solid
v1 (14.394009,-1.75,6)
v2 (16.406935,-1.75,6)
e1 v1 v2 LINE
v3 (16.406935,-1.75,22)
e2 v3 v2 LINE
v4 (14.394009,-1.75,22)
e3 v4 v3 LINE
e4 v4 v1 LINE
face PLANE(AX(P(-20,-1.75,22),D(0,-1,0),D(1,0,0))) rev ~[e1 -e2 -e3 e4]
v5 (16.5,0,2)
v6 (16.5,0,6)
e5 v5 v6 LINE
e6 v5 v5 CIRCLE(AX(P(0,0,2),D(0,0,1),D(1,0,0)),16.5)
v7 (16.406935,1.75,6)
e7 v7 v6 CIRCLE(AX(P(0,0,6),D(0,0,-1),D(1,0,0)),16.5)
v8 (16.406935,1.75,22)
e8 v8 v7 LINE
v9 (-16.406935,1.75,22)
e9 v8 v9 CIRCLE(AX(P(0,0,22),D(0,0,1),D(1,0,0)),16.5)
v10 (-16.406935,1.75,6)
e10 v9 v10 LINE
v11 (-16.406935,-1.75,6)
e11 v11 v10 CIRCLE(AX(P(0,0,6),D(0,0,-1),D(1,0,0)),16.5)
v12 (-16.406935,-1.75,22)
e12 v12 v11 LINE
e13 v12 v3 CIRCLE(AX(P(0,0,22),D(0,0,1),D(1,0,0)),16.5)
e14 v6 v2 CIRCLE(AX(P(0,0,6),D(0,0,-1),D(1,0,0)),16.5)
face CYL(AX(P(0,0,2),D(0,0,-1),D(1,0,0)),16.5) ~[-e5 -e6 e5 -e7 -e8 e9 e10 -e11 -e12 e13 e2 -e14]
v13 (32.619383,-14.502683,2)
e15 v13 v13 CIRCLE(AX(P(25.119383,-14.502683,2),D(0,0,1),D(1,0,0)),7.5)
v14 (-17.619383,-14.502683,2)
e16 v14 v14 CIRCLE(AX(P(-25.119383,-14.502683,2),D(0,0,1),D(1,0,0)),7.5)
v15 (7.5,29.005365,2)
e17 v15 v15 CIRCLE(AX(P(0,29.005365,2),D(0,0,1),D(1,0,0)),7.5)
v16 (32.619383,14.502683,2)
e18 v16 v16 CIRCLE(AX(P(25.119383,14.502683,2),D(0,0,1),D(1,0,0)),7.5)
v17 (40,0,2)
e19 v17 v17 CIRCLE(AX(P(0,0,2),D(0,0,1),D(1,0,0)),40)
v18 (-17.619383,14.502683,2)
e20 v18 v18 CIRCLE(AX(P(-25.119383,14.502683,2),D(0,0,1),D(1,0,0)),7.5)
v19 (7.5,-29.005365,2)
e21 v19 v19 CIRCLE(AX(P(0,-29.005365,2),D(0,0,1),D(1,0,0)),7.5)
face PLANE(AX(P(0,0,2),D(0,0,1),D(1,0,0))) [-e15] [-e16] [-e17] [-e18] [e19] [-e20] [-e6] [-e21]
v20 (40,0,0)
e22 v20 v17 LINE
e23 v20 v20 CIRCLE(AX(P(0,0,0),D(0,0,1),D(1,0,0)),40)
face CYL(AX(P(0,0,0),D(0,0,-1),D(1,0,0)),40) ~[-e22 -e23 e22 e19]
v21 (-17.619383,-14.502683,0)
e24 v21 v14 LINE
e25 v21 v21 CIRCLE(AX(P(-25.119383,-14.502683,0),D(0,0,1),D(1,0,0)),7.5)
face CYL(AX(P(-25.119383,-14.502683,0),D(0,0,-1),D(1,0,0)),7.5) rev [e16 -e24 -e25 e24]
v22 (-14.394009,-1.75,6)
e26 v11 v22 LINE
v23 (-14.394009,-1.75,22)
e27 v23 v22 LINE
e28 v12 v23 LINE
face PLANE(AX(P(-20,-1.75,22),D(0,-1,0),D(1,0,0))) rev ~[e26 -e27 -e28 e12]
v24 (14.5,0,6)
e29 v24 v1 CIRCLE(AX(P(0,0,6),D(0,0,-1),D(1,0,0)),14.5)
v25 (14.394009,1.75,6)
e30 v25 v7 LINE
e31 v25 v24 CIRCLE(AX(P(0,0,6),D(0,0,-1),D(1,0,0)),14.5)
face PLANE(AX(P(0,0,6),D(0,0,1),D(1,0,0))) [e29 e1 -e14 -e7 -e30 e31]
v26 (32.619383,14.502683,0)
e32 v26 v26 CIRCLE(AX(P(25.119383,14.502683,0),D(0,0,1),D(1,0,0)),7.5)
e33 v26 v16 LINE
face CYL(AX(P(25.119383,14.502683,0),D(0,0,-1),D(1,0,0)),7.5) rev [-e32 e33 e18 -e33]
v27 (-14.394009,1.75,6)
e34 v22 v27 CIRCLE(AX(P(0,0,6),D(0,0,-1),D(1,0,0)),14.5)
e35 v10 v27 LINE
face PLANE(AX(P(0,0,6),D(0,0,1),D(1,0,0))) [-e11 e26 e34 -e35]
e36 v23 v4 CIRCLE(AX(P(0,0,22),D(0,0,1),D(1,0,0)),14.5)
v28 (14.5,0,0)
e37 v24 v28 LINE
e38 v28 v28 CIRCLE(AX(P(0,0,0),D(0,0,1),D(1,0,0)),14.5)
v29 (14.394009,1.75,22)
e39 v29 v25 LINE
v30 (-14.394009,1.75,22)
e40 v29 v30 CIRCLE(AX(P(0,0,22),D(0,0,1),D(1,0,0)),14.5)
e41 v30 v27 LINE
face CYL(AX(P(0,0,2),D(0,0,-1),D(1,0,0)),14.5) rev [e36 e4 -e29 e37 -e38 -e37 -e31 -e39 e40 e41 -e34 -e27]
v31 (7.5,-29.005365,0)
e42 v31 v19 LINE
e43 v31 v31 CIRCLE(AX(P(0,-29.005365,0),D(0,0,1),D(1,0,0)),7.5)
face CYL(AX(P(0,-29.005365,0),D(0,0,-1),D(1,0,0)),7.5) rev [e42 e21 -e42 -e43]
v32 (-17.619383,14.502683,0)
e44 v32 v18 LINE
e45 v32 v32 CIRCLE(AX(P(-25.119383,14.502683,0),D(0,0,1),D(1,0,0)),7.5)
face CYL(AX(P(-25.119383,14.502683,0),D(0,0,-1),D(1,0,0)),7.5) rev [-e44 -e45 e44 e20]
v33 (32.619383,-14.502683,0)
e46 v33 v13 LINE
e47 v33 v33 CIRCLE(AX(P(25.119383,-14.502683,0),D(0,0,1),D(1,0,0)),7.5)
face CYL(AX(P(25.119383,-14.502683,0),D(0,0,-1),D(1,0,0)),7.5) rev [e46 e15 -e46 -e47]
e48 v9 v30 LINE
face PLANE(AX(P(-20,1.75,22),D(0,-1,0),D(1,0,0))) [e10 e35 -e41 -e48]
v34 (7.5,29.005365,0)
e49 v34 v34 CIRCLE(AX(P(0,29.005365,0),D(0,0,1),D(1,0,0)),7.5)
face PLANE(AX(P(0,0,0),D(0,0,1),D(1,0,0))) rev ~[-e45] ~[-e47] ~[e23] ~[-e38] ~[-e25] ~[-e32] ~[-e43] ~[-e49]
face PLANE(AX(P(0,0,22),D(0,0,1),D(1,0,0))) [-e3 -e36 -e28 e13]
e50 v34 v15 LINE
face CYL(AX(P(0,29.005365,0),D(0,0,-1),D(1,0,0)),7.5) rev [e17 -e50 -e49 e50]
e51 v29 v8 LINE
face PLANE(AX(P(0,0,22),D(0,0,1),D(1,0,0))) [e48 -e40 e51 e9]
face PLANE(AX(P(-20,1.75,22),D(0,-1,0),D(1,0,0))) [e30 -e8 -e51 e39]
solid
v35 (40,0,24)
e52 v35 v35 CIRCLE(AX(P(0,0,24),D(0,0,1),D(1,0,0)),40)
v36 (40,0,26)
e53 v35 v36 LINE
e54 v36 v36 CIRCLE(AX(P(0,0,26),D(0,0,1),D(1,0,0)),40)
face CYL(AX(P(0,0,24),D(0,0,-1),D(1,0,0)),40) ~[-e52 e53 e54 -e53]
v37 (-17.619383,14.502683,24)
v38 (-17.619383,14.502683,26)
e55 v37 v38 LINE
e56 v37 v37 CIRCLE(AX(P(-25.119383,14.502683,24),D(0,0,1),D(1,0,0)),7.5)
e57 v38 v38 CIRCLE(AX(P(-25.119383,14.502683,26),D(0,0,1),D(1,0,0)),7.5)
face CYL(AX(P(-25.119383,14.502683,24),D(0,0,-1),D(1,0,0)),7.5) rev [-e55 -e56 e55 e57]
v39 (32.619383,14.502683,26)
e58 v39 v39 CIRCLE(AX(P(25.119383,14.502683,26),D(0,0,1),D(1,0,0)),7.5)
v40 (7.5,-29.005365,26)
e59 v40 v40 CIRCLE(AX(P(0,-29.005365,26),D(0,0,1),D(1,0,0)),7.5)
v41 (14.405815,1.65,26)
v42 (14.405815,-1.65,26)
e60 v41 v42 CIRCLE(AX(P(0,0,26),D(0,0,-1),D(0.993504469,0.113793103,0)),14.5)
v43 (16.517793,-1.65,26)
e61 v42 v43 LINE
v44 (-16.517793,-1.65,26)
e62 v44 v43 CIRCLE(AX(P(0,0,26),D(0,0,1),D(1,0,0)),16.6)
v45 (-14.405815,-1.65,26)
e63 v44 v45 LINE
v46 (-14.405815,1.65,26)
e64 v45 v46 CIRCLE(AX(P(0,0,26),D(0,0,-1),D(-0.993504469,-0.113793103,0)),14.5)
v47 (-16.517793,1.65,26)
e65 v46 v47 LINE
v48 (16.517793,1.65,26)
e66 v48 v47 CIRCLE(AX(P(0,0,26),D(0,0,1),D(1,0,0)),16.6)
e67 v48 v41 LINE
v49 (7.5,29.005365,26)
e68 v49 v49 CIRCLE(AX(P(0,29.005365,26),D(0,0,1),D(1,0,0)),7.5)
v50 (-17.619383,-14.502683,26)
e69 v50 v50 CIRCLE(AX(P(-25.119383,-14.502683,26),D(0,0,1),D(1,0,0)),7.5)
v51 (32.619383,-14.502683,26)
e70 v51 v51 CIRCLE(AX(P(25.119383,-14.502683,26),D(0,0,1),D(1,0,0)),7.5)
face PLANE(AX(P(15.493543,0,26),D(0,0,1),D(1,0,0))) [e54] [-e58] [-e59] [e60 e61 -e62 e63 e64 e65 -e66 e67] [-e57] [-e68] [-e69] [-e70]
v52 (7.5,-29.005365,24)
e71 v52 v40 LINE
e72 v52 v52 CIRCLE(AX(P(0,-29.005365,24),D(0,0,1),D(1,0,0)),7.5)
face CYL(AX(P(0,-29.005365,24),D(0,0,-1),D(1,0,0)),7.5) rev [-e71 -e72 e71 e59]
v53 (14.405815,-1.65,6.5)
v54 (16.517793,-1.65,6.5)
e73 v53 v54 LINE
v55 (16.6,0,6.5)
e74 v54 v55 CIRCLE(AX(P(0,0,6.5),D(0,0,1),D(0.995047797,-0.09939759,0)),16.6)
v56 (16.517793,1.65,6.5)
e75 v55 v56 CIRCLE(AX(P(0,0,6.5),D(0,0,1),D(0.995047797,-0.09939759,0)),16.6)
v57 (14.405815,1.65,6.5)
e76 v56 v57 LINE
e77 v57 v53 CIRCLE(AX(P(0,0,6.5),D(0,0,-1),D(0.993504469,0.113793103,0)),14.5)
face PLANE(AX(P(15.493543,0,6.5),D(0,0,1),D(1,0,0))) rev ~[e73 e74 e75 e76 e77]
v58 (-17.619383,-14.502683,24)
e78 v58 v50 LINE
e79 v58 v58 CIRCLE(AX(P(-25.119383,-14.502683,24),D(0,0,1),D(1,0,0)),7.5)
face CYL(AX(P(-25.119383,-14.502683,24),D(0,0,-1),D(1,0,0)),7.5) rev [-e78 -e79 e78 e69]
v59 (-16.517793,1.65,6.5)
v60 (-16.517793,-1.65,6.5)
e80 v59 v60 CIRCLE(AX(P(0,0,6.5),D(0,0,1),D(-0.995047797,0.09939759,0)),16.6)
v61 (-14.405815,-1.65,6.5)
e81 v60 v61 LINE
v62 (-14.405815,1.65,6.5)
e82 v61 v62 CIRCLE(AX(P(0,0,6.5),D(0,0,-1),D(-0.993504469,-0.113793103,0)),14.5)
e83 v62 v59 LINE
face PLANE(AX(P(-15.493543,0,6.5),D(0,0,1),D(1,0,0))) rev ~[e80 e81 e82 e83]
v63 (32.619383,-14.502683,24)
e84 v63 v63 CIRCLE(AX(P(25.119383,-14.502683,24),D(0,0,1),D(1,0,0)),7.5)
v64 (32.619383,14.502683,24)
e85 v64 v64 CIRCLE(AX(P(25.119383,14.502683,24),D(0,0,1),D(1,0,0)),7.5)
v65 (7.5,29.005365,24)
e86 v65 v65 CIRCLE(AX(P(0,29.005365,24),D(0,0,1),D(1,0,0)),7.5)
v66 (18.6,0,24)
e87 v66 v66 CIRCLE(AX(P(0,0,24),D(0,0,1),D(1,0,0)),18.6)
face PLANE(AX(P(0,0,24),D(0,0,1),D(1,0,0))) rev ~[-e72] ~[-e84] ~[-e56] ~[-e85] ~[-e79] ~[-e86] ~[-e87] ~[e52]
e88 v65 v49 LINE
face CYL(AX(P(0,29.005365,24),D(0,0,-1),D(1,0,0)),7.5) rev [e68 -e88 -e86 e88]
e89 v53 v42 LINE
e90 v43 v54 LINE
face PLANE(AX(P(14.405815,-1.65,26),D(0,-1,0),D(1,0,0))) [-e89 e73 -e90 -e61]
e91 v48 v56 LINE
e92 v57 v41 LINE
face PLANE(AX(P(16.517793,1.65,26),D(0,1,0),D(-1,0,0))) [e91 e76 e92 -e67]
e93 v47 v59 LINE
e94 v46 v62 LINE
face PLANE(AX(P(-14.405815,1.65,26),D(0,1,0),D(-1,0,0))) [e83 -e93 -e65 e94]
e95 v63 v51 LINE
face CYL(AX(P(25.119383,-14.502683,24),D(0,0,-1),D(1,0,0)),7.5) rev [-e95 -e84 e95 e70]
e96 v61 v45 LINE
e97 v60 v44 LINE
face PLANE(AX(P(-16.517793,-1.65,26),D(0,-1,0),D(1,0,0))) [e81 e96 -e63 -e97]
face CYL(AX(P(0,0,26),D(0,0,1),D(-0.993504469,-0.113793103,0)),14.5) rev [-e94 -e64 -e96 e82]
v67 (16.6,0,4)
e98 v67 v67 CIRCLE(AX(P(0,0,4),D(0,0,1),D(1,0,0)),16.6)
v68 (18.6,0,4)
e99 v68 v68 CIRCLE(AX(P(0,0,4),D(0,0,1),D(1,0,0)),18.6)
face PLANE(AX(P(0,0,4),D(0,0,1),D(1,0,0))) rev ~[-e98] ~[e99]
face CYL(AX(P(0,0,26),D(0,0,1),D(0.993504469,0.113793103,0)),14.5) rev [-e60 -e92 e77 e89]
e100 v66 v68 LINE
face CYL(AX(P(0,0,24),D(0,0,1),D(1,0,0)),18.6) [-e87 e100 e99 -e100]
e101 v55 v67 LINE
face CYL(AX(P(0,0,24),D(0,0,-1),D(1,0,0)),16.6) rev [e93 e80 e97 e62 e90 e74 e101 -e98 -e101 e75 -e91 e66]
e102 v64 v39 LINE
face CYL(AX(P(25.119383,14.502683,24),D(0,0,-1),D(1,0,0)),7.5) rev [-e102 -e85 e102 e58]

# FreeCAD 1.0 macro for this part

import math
import FreeCAD as App
import Part
import Sketcher


def add_polygon(sketch, points):
    """Adds a closed chain of lines whose ends are joined by coincident constraints."""
    first, n = sketch.GeometryCount, len(points)
    for a, b in zip(points, points[1:] + points[:1]):
        sketch.addGeometry(Part.LineSegment(App.Vector(*a, 0), App.Vector(*b, 0)), False)
    for i in range(n):
        sketch.addConstraint(Sketcher.Constraint("Coincident", first + i, 2, first + (i + 1) % n, 1))

doc = App.newDocument("Part")
body = doc.addObject("PartDesign::Body", "Body")

# Sketch on XY plane
sketch1 = doc.addObject("Sketcher::SketchObject", "Sketch")
body.addObject(sketch1)
sketch1.AttachmentSupport = (doc.XY_Plane, [""])
sketch1.MapMode = "FlatFace"
sketch1.addGeometry([
    Part.Circle(App.Vector(0, 0, 0), App.Vector(0, 0, 1), 40),  # 0
    Part.Circle(App.Vector(-25.119383, -14.502683, 0), App.Vector(0, 0, 1), 7.5),  # 1
    Part.Circle(App.Vector(0, -29.005365, 0), App.Vector(0, 0, 1), 7.5),  # 2
    Part.Circle(App.Vector(25.119383, -14.502683, 0), App.Vector(0, 0, 1), 7.5),  # 3
    Part.Circle(App.Vector(-25.119383, 14.502683, 0), App.Vector(0, 0, 1), 7.5),  # 4
    Part.Circle(App.Vector(0, 0, 0), App.Vector(0, 0, 1), 14.5),  # 5
    Part.Circle(App.Vector(25.119383, 14.502683, 0), App.Vector(0, 0, 1), 7.5),  # 6
    Part.Circle(App.Vector(0, 29.005365, 0), App.Vector(0, 0, 1), 7.5),  # 7
], False)
sketch1.addConstraint([
    Sketcher.Constraint("Coincident", 0, 3, -1, 1),
    Sketcher.Constraint("Coincident", 5, 3, -1, 1),
    Sketcher.Constraint("Equal", 1, 2),
    Sketcher.Constraint("Equal", 2, 3),
    Sketcher.Constraint("Equal", 3, 4),
    Sketcher.Constraint("Equal", 4, 6),
    Sketcher.Constraint("Equal", 6, 7),
    Sketcher.Constraint("Symmetric", 3, 3, 4, 3, -1, 1),
    Sketcher.Constraint("Symmetric", 1, 3, 6, 3, -1, 1),
    Sketcher.Constraint("Symmetric", 2, 3, 7, 3, -1, 1),
    Sketcher.Constraint("Symmetric", 1, 3, 3, 3, -2),
    Sketcher.Constraint("PointOnObject", 2, 3, -2),
    Sketcher.Constraint("Diameter", 0, 80.0),
    Sketcher.Constraint("Diameter", 1, 15.0),
    Sketcher.Constraint("Diameter", 5, 29.0),
    Sketcher.Constraint("DistanceY", 2, 3, 4, 3, 43.508048),
    Sketcher.Constraint("DistanceX", 1, 3, -1, 1, 25.119383),
    Sketcher.Constraint("DistanceY", 1, 3, -1, 1, 14.502683),
])
pad1 = doc.addObject("PartDesign::Pad", "Pad")
body.addObject(pad1)
pad1.Profile = sketch1
pad1.Length = 2

# Sketch on XY plane
sketch2 = doc.addObject("Sketcher::SketchObject", "Sketch001")
body.addObject(sketch2)
sketch2.AttachmentSupport = (doc.XY_Plane, [""])
sketch2.MapMode = "FlatFace"
sketch2.AttachmentOffset = App.Placement(App.Vector(0, 0, 2), App.Rotation())
sketch2.addGeometry([
    Part.Circle(App.Vector(0, 0, 0), App.Vector(0, 0, 1), 16.5),
    Part.Circle(App.Vector(0, 0, 0), App.Vector(0, 0, 1), 14.5),
], False)
sketch2.addConstraint([
    Sketcher.Constraint("Coincident", 0, 3, -1, 1),
    Sketcher.Constraint("Coincident", 1, 3, -1, 1),
    Sketcher.Constraint("Diameter", 0, 33.0),
    Sketcher.Constraint("Diameter", 1, 29.0),
])
pad2 = doc.addObject("PartDesign::Pad", "Pad001")
body.addObject(pad2)
pad2.Profile = sketch2
pad2.Length = 20

# Sketch on XY plane
sketch3 = doc.addObject("Sketcher::SketchObject", "Sketch002")
body.addObject(sketch3)
sketch3.AttachmentSupport = (doc.XY_Plane, [""])
sketch3.MapMode = "FlatFace"
sketch3.AttachmentOffset = App.Placement(App.Vector(0, 0, 22), App.Rotation())
add_polygon(sketch3, [(-20, 1.75), (-20, -1.75), (20, -1.75), (20, 1.75)])  # lines 0-3
sketch3.addConstraint([
    Sketcher.Constraint("Vertical", 0),
    Sketcher.Constraint("Horizontal", 1),
    Sketcher.Constraint("Vertical", 2),
    Sketcher.Constraint("Horizontal", 3),
    Sketcher.Constraint("Symmetric", 0, 2, 2, 2, -1, 1),
    Sketcher.Constraint("DistanceX", 1, 1, 1, 2, 40.0),
    Sketcher.Constraint("DistanceY", 0, 2, 0, 1, 3.5),
])
pocket1 = doc.addObject("PartDesign::Pocket", "Pocket")
body.addObject(pocket1)
pocket1.Profile = sketch3
pocket1.Length = 16
body2 = doc.addObject("PartDesign::Body", "Body001")

# Sketch on XY plane
sketch4 = doc.addObject("Sketcher::SketchObject", "Sketch003")
body2.addObject(sketch4)
sketch4.AttachmentSupport = (doc.getObject("XY_Plane001"), [""])
sketch4.MapMode = "FlatFace"
sketch4.AttachmentOffset = App.Placement(App.Vector(0, 0, 24), App.Rotation())
sketch4.addGeometry([
    Part.Circle(App.Vector(0, 0, 0), App.Vector(0, 0, 1), 18.6),
    Part.Circle(App.Vector(0, 0, 0), App.Vector(0, 0, 1), 16.6),
], False)
sketch4.addConstraint([
    Sketcher.Constraint("Coincident", 0, 3, -1, 1),
    Sketcher.Constraint("Coincident", 1, 3, -1, 1),
    Sketcher.Constraint("Diameter", 0, 37.2),
    Sketcher.Constraint("Diameter", 1, 33.2),
])
pad3 = doc.addObject("PartDesign::Pad", "Pad002")
body2.addObject(pad3)
pad3.Profile = sketch4
pad3.Length = 20
pad3.Reversed = True

# Sketch on XY plane
sketch5 = doc.addObject("Sketcher::SketchObject", "Sketch004")
body2.addObject(sketch5)
sketch5.AttachmentSupport = (doc.getObject("XY_Plane001"), [""])
sketch5.MapMode = "FlatFace"
sketch5.AttachmentOffset = App.Placement(App.Vector(0, 0, 24), App.Rotation())
sketch5.addGeometry([
    Part.Circle(App.Vector(0, 0, 0), App.Vector(0, 0, 1), 40),  # 0
    Part.Circle(App.Vector(-25.119383, -14.502683, 0), App.Vector(0, 0, 1), 7.5),  # 1
    Part.Circle(App.Vector(0, -29.005365, 0), App.Vector(0, 0, 1), 7.5),  # 2
    Part.Circle(App.Vector(25.119383, -14.502683, 0), App.Vector(0, 0, 1), 7.5),  # 3
    Part.Circle(App.Vector(-25.119383, 14.502683, 0), App.Vector(0, 0, 1), 7.5),  # 4
    Part.Circle(App.Vector(0, 0, 0), App.Vector(0, 0, 1), 16.6),  # 5
    Part.Circle(App.Vector(25.119383, 14.502683, 0), App.Vector(0, 0, 1), 7.5),  # 6
    Part.Circle(App.Vector(0, 29.005365, 0), App.Vector(0, 0, 1), 7.5),  # 7
], False)
sketch5.addConstraint([
    Sketcher.Constraint("Coincident", 0, 3, -1, 1),
    Sketcher.Constraint("Coincident", 5, 3, -1, 1),
    Sketcher.Constraint("Equal", 1, 2),
    Sketcher.Constraint("Equal", 2, 3),
    Sketcher.Constraint("Equal", 3, 4),
    Sketcher.Constraint("Equal", 4, 6),
    Sketcher.Constraint("Equal", 6, 7),
    Sketcher.Constraint("Symmetric", 3, 3, 4, 3, -1, 1),
    Sketcher.Constraint("Symmetric", 1, 3, 6, 3, -1, 1),
    Sketcher.Constraint("Symmetric", 2, 3, 7, 3, -1, 1),
    Sketcher.Constraint("Symmetric", 1, 3, 3, 3, -2),
    Sketcher.Constraint("PointOnObject", 2, 3, -2),
    Sketcher.Constraint("Diameter", 0, 80.0),
    Sketcher.Constraint("Diameter", 1, 15.0),
    Sketcher.Constraint("Diameter", 5, 33.2),
    Sketcher.Constraint("DistanceY", 2, 3, 4, 3, 43.508048),
    Sketcher.Constraint("DistanceX", 1, 3, -1, 1, 25.119383),
    Sketcher.Constraint("DistanceY", 1, 3, -1, 1, 14.502683),
])
pad4 = doc.addObject("PartDesign::Pad", "Pad003")
body2.addObject(pad4)
pad4.Profile = sketch5
pad4.Length = 2

# Sketch on XY plane
sketch6 = doc.addObject("Sketcher::SketchObject", "Sketch005")
body2.addObject(sketch6)
sketch6.AttachmentSupport = (doc.getObject("XY_Plane001"), [""])
sketch6.MapMode = "FlatFace"
sketch6.AttachmentOffset = App.Placement(App.Vector(0, 0, 26), App.Rotation())
sketch6.addGeometry([
    Part.LineSegment(App.Vector(16.517793, 1.65, 0), App.Vector(14.405815, 1.65, 0)),  # 0
    Part.ArcOfCircle(Part.Circle(App.Vector(0, 0, 0), App.Vector(0, 0, 1), 14.5), math.radians(-6.534018), math.radians(6.534018)),  # 1
    Part.LineSegment(App.Vector(14.405815, -1.65, 0), App.Vector(16.517793, -1.65, 0)),  # 2
    Part.ArcOfCircle(Part.Circle(App.Vector(0, 0, 0), App.Vector(0, 0, 1), 16.6), math.radians(-5.704482), math.radians(5.704482)),  # 3
    Part.ArcOfCircle(Part.Circle(App.Vector(0, 0, 0), App.Vector(0, 0, 1), 14.5), math.radians(173.465982), math.radians(186.534018)),  # 4
    Part.LineSegment(App.Vector(-14.405815, 1.65, 0), App.Vector(-16.517793, 1.65, 0)),  # 5
    Part.ArcOfCircle(Part.Circle(App.Vector(0, 0, 0), App.Vector(0, 0, 1), 16.6), math.radians(174.295518), math.radians(185.704482)),  # 6
    Part.LineSegment(App.Vector(-16.517793, -1.65, 0), App.Vector(-14.405815, -1.65, 0)),  # 7
], False)
sketch6.addConstraint([
    Sketcher.Constraint("Coincident", 0, 2, 1, 2),
    Sketcher.Constraint("Coincident", 1, 1, 2, 1),
    Sketcher.Constraint("Coincident", 2, 2, 3, 1),
    Sketcher.Constraint("Coincident", 3, 2, 0, 1),
    Sketcher.Constraint("Coincident", 4, 1, 5, 1),
    Sketcher.Constraint("Coincident", 5, 2, 6, 1),
    Sketcher.Constraint("Coincident", 6, 2, 7, 1),
    Sketcher.Constraint("Coincident", 7, 2, 4, 2),
    Sketcher.Constraint("Horizontal", 0),
    Sketcher.Constraint("Horizontal", 2),
    Sketcher.Constraint("Horizontal", 5),
    Sketcher.Constraint("Horizontal", 7),
    Sketcher.Constraint("Coincident", 1, 3, -1, 1),
    Sketcher.Constraint("Coincident", 3, 3, -1, 1),
    Sketcher.Constraint("Coincident", 4, 3, -1, 1),
    Sketcher.Constraint("Coincident", 6, 3, -1, 1),
    Sketcher.Constraint("Equal", 1, 4),
    Sketcher.Constraint("Equal", 3, 6),
    Sketcher.Constraint("Horizontal", 3, 2, 4, 1),
    Sketcher.Constraint("Horizontal", 2, 2, 6, 2),
    Sketcher.Constraint("Vertical", 0, 2, 1, 1),
    Sketcher.Constraint("Radius", 1, 14.5),
    Sketcher.Constraint("Radius", 3, 16.6),
    Sketcher.Constraint("DistanceY", 1, 1, 0, 2, 3.3),
])
pad5 = doc.addObject("PartDesign::Pad", "Pad004")
body2.addObject(pad5)
pad5.Profile = sketch6
pad5.Length = 19.5
pad5.Reversed = True

# Sketch on XY plane
sketch7 = doc.addObject("Sketcher::SketchObject", "Sketch006")
body2.addObject(sketch7)
sketch7.AttachmentSupport = (doc.getObject("XY_Plane001"), [""])
sketch7.MapMode = "FlatFace"
sketch7.AttachmentOffset = App.Placement(App.Vector(0, 0, 26), App.Rotation())
sketch7.addGeometry([
    Part.LineSegment(App.Vector(16.517793, 1.65, 0), App.Vector(14.405815, 1.65, 0)),  # 0
    Part.ArcOfCircle(Part.Circle(App.Vector(0, 0, 0), App.Vector(0, 0, 1), 14.5), math.radians(-6.534018), math.radians(6.534018)),  # 1
    Part.LineSegment(App.Vector(14.405815, -1.65, 0), App.Vector(16.517793, -1.65, 0)),  # 2
    Part.ArcOfCircle(Part.Circle(App.Vector(0, 0, 0), App.Vector(0, 0, 1), 16.6), math.radians(-5.704482), math.radians(5.704482)),  # 3
    Part.ArcOfCircle(Part.Circle(App.Vector(0, 0, 0), App.Vector(0, 0, 1), 14.5), math.radians(173.465982), math.radians(186.534018)),  # 4
    Part.LineSegment(App.Vector(-14.405815, 1.65, 0), App.Vector(-16.517793, 1.65, 0)),  # 5
    Part.ArcOfCircle(Part.Circle(App.Vector(0, 0, 0), App.Vector(0, 0, 1), 16.6), math.radians(174.295518), math.radians(185.704482)),  # 6
    Part.LineSegment(App.Vector(-16.517793, -1.65, 0), App.Vector(-14.405815, -1.65, 0)),  # 7
], False)
sketch7.addConstraint([
    Sketcher.Constraint("Coincident", 0, 2, 1, 2),
    Sketcher.Constraint("Coincident", 1, 1, 2, 1),
    Sketcher.Constraint("Coincident", 2, 2, 3, 1),
    Sketcher.Constraint("Coincident", 3, 2, 0, 1),
    Sketcher.Constraint("Coincident", 4, 1, 5, 1),
    Sketcher.Constraint("Coincident", 5, 2, 6, 1),
    Sketcher.Constraint("Coincident", 6, 2, 7, 1),
    Sketcher.Constraint("Coincident", 7, 2, 4, 2),
    Sketcher.Constraint("Horizontal", 0),
    Sketcher.Constraint("Horizontal", 2),
    Sketcher.Constraint("Horizontal", 5),
    Sketcher.Constraint("Horizontal", 7),
    Sketcher.Constraint("Coincident", 1, 3, -1, 1),
    Sketcher.Constraint("Coincident", 3, 3, -1, 1),
    Sketcher.Constraint("Coincident", 4, 3, -1, 1),
    Sketcher.Constraint("Coincident", 6, 3, -1, 1),
    Sketcher.Constraint("Equal", 1, 4),
    Sketcher.Constraint("Equal", 3, 6),
    Sketcher.Constraint("Horizontal", 3, 2, 4, 1),
    Sketcher.Constraint("Horizontal", 2, 2, 6, 2),
    Sketcher.Constraint("Vertical", 0, 2, 1, 1),
    Sketcher.Constraint("Radius", 1, 14.5),
    Sketcher.Constraint("Radius", 3, 16.6),
    Sketcher.Constraint("DistanceY", 1, 1, 0, 2, 3.3),
])
pad6 = doc.addObject("PartDesign::Pad", "Pad005")
body2.addObject(pad6)
pad6.Profile = sketch7
pad6.Length = 16
pad6.Reversed = True

doc.recompute()
